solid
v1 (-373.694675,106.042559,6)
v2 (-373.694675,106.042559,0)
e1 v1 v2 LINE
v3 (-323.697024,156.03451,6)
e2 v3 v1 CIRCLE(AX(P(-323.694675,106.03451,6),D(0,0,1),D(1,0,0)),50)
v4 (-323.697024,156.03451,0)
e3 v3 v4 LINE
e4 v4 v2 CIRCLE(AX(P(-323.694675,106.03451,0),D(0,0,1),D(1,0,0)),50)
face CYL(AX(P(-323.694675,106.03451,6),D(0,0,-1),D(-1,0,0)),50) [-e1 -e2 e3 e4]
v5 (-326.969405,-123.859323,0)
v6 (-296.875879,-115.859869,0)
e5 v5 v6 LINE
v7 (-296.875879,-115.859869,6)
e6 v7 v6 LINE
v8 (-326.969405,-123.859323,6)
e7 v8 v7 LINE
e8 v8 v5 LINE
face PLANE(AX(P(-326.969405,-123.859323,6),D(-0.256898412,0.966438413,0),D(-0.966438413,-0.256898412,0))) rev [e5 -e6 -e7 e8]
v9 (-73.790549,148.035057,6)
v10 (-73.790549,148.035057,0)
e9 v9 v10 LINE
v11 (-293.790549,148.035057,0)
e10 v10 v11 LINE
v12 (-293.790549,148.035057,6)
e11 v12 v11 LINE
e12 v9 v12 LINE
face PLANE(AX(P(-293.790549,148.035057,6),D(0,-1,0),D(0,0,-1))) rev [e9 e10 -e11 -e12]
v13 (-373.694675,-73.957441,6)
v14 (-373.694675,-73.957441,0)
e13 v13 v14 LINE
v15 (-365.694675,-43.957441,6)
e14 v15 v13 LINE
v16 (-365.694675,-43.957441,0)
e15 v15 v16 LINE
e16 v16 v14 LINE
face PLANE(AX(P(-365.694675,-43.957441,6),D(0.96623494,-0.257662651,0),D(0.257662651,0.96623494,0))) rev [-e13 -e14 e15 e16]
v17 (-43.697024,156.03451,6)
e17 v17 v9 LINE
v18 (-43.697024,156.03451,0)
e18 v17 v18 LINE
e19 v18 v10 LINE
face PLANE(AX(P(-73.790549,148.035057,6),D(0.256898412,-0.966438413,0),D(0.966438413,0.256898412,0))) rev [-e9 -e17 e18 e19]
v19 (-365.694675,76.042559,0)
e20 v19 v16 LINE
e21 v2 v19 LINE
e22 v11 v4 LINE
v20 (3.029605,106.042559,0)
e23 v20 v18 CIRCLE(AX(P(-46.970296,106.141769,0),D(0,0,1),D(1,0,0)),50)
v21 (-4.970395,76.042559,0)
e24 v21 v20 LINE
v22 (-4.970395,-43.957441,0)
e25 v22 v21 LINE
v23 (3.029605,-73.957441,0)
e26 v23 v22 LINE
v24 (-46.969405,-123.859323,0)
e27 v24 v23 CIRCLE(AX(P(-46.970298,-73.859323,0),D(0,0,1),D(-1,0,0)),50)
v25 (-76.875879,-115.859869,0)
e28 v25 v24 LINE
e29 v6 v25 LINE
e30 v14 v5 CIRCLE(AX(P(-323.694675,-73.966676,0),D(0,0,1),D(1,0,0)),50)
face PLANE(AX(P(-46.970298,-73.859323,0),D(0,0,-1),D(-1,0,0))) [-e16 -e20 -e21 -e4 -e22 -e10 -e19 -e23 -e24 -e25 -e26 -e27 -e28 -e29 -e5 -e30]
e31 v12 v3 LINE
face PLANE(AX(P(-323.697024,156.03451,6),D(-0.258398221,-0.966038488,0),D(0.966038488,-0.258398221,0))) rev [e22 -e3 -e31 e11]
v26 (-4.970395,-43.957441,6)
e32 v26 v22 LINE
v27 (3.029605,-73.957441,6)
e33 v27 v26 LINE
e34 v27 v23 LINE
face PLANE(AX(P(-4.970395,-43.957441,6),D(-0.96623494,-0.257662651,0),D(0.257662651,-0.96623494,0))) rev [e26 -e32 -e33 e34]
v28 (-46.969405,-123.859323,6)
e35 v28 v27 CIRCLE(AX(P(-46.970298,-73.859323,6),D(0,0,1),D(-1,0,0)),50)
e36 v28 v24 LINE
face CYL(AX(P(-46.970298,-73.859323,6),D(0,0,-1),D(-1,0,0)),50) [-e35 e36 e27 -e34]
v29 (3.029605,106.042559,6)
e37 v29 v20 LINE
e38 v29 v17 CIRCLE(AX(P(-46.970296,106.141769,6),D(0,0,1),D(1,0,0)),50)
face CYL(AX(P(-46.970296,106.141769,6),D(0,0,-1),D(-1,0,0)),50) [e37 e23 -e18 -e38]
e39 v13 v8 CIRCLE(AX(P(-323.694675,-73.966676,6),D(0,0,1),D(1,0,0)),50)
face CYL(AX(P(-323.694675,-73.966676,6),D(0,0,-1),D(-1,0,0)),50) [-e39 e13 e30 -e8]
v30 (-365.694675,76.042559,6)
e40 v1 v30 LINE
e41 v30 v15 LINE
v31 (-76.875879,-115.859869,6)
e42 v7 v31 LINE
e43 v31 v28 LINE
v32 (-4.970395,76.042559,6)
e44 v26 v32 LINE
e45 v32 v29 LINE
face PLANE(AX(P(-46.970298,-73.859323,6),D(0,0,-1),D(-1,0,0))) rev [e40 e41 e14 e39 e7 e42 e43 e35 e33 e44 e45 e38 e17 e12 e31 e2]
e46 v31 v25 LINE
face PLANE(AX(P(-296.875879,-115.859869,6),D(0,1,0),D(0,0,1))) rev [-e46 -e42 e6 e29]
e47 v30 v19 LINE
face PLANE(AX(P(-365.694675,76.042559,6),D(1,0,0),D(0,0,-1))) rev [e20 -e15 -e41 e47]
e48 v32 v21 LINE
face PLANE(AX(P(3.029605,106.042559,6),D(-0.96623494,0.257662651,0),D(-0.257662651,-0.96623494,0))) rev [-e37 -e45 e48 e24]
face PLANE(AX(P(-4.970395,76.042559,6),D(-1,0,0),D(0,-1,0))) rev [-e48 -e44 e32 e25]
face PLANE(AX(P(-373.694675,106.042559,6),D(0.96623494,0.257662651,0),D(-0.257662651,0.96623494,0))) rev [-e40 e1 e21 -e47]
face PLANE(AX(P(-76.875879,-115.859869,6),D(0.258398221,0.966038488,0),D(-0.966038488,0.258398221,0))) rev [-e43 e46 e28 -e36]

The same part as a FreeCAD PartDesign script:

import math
import FreeCAD as App
import Part
import Sketcher

V = App.Vector
Q = App.Units.Quantity

doc = App.newDocument("Part")
body = doc.addObject("PartDesign::Body", "Body")

sketch1 = doc.addObject("Sketcher::SketchObject", "Sketch")
body.addObject(sketch1)
sketch1.AttachmentSupport = (doc.XY_Plane, [""])
sketch1.MapMode = "FlatFace"
sketch1.addGeometry([
    Part.LineSegment(V(-374, 106, 0), V(-366, 76, 0)),
    Part.LineSegment(V(-366, 76, 0), V(-366, -44, 0)),
    Part.LineSegment(V(-366, -44, 0), V(-374, -74, 0)),
    Part.ArcOfCircle(Part.Circle(V(-324, -74, 0), V(0, 0, 1), 50), math.radians(180), math.radians(266)),
    Part.LineSegment(V(-327, -124, 0), V(-297, -116, 0)),
    Part.LineSegment(V(-297, -116, 0), V(-77, -116, 0)),
    Part.LineSegment(V(-77, -116, 0), V(-47, -124, 0)),
    Part.ArcOfCircle(Part.Circle(V(-47, -74, 0), V(0, 0, 1), 50), math.radians(-90), math.radians(0)),
    Part.LineSegment(V(3, -74, 0), V(-5, -44, 0)),
    Part.LineSegment(V(-5, -44, 0), V(-5, 76, 0)),
    Part.LineSegment(V(-5, 76, 0), V(3, 106, 0)),
    Part.ArcOfCircle(Part.Circle(V(-47, 106, 0), V(0, 0, 1), 50), math.radians(0), math.radians(86)),
    Part.LineSegment(V(-44, 156, 0), V(-74, 148, 0)),
    Part.LineSegment(V(-74, 148, 0), V(-294, 148, 0)),
    Part.LineSegment(V(-294, 148, 0), V(-324, 156, 0)),
    Part.ArcOfCircle(Part.Circle(V(-324, 106, 0), V(0, 0, 1), 50), math.radians(90), math.radians(180)),
], False)
sketch1.addConstraint([
    Sketcher.Constraint("Coincident", 0, 2, 1, 1),
    Sketcher.Constraint("Coincident", 1, 2, 2, 1),
    Sketcher.Constraint("Coincident", 2, 2, 3, 1),
    Sketcher.Constraint("Coincident", 3, 2, 4, 1),
    Sketcher.Constraint("Coincident", 4, 2, 5, 1),
    Sketcher.Constraint("Coincident", 5, 2, 6, 1),
    Sketcher.Constraint("Coincident", 6, 2, 7, 1),
    Sketcher.Constraint("Coincident", 7, 2, 8, 1),
    Sketcher.Constraint("Coincident", 8, 2, 9, 1),
    Sketcher.Constraint("Coincident", 9, 2, 10, 1),
    Sketcher.Constraint("Coincident", 10, 2, 11, 1),
    Sketcher.Constraint("Coincident", 11, 2, 12, 1),
    Sketcher.Constraint("Coincident", 12, 2, 13, 1),
    Sketcher.Constraint("Coincident", 13, 2, 14, 1),
    Sketcher.Constraint("Coincident", 14, 2, 15, 1),
    Sketcher.Constraint("Coincident", 15, 2, 0, 1),
    Sketcher.Constraint("Vertical", 1),
    Sketcher.Constraint("Horizontal", 5),
    Sketcher.Constraint("Vertical", 9),
    Sketcher.Constraint("Horizontal", 13),
    Sketcher.Constraint("Equal", 3, 7),
    Sketcher.Constraint("Equal", 7, 11),
    Sketcher.Constraint("Equal", 11, 15),
    Sketcher.Constraint("Parallel", 0, 8),
    Sketcher.Constraint("Parallel", 2, 10),
    Sketcher.Constraint("Parallel", 4, 12),
    Sketcher.Constraint("Parallel", 6, 14),
    Sketcher.Constraint("Horizontal", 3, 2, 6, 2),
    Sketcher.Constraint("Horizontal", 2, 2, 7, 2),
    Sketcher.Constraint("Horizontal", 1, 2, 8, 2),
    Sketcher.Constraint("Horizontal", 0, 2, 9, 2),
    Sketcher.Constraint("Horizontal", 11, 2, 14, 2),
    Sketcher.Constraint("Horizontal", 10, 2, 15, 2),
    Sketcher.Constraint("Vertical", 3, 3, 15, 3),
    Sketcher.Constraint("Vertical", 7, 2, 10, 2),
    Sketcher.Constraint("Equal", 5, 13),
    Sketcher.Constraint("Equal", 4, 12),
    Sketcher.Constraint("Radius", 3, Q("50 mm")),
    Sketcher.Constraint("DistanceX", 5, 1, 5, 2, Q("220 mm")),
    Sketcher.Constraint("DistanceY", 1, 2, 1, 1, Q("120 mm")),
    Sketcher.Constraint("DistanceX", 0, 2, 15, 3, Q("41.999999 mm")),
    Sketcher.Constraint("DistanceY", 2, 2, 1, 2, Q("30 mm")),
    Sketcher.Constraint("DistanceX", 3, 2, 6, 2, Q("280 mm")),
    Sketcher.Constraint("DistanceX", 7, 3, -1, 1, Q("46.970298 mm")),
    Sketcher.Constraint("DistanceY", 10, 2, 12, 2, Q("41.992499 mm")),
    Sketcher.Constraint("Distance", 6, Q("30.95785 mm")),
    Sketcher.Constraint("DistanceY", -1, 1, 11, 3, Q("106.141769 mm")),
    Sketcher.Constraint("DistanceY", -1, 1, 15, 3, Q("106.03451 mm")),
    Sketcher.Constraint("DistanceY", -1, 1, 0, 2, Q("76.042559 mm")),
    Sketcher.Constraint("DistanceX", 4, 2, -1, 1, Q("296.875879 mm")),
    Sketcher.Constraint("DistanceY", 4, 2, -1, 1, Q("115.859869 mm")),
    Sketcher.Constraint("DistanceX", 3, 3, 11, 3, Q("276.724379 mm")),
])
pad1 = doc.addObject("PartDesign::Pad", "Pad")
body.addObject(pad1)
pad1.Profile = sketch1
pad1.Length = 6

doc.recompute()
